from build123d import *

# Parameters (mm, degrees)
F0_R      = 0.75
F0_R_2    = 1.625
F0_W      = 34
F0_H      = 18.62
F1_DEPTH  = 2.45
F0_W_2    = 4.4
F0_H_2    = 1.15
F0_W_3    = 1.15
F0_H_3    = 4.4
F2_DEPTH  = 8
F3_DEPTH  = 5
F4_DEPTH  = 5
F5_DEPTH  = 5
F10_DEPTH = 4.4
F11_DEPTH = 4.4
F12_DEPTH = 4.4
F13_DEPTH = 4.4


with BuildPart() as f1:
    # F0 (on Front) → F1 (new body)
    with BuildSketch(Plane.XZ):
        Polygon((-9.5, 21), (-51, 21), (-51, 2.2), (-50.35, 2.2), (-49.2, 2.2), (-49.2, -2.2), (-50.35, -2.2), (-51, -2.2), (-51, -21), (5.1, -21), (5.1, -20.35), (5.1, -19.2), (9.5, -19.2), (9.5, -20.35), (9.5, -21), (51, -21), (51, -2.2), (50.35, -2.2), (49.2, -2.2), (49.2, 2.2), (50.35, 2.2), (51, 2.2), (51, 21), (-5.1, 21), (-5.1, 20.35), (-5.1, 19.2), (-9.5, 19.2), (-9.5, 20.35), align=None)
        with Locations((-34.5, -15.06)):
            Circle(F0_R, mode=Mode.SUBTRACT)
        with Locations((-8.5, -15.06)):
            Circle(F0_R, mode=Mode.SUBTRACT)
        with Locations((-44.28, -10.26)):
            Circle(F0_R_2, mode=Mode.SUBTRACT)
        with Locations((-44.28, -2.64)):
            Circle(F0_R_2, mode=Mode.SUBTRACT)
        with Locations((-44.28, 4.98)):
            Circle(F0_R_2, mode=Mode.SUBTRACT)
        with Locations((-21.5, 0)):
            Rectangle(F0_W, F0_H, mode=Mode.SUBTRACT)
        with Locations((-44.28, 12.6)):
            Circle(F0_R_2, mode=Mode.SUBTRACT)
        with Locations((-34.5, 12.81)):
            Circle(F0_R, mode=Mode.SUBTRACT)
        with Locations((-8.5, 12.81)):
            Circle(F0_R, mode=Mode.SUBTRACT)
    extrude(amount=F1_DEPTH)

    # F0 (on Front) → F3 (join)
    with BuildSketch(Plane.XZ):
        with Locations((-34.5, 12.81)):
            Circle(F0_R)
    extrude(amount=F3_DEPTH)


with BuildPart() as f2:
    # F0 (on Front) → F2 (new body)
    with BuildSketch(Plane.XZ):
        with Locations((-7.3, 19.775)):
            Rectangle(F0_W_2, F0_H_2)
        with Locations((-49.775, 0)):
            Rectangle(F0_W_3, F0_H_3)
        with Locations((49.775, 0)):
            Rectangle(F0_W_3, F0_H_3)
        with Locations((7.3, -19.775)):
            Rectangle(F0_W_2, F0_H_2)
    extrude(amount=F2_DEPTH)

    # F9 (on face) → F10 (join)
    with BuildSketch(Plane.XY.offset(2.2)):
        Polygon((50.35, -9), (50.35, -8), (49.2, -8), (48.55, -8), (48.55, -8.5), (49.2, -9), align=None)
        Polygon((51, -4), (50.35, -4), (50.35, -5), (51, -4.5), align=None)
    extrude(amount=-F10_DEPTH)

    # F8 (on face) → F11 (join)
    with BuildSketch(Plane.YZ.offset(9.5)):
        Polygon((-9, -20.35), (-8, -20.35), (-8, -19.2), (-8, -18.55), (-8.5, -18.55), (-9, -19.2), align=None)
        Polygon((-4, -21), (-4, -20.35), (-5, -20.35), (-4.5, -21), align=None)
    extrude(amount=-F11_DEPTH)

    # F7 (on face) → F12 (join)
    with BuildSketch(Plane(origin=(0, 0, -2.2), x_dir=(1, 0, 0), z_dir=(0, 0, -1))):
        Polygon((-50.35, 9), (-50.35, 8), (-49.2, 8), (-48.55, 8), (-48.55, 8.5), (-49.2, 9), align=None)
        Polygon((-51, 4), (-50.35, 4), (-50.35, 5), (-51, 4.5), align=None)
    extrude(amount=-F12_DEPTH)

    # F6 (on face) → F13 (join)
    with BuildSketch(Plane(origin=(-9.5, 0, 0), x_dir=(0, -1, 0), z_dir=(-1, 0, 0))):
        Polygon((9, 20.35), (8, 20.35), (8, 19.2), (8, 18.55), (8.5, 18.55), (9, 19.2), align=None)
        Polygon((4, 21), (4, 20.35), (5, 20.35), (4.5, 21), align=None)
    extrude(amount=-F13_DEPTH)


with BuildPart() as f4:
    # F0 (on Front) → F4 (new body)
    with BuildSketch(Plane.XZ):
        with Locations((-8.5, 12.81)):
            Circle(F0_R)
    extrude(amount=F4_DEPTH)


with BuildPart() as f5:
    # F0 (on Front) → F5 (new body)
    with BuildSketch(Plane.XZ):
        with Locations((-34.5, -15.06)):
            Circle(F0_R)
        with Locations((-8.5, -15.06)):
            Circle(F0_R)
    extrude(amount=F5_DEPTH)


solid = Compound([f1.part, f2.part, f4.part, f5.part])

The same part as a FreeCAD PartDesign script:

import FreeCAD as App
import Part
import Sketcher


def add_polygon(sketch, points):
    """Adds a closed chain of lines whose ends are joined by coincident constraints."""
    first, n = sketch.GeometryCount, len(points)
    for a, b in zip(points, points[1:] + points[:1]):
        sketch.addGeometry(Part.LineSegment(App.Vector(*a, 0), App.Vector(*b, 0)), False)
    for i in range(n):
        sketch.addConstraint(Sketcher.Constraint("Coincident", first + i, 2, first + (i + 1) % n, 1))

doc = App.newDocument("Part")
params = doc.addObject("Spreadsheet::Sheet", "Params")
for row, (alias, value) in enumerate([
    ("sketch1_diameter", "1.5 mm"),
    ("sketch1_diameter2", "3.25 mm"),
    ("sketch1_width", "34 mm"),
    ("sketch1_width2", "41.5 mm"),
    ("sketch1_width3", "1.8 mm"),
    ("pad1_length", "2.45 mm"),
    ("sketch2_diameter", "1.5 mm"),
    ("pad2_length", "5 mm"),
    ("sketch3_width", "4.4 mm"),
    ("sketch3_width2", "1.15 mm"),
    ("pad3_length", "8 mm"),
    ("sketch4_height", "1 mm"),
    ("sketch4_width", "1.8 mm"),
    ("sketch4_height2", "0.5 mm"),
    ("sketch4_width2", "1.15 mm"),
    ("pad4_length", "4.4 mm"),
    ("sketch5_width", "1 mm"),
    ("sketch5_width2", "0.5 mm"),
    ("sketch5_height", "1.8 mm"),
    ("sketch5_height2", "1.15 mm"),
    ("pad5_length", "4.4 mm"),
    ("sketch6_height", "1 mm"),
    ("sketch6_width", "1.8 mm"),
    ("sketch6_height2", "0.5 mm"),
    ("sketch6_width2", "1.15 mm"),
    ("pad6_length", "4.4 mm"),
    ("sketch7_width", "1 mm"),
    ("sketch7_width2", "0.5 mm"),
    ("sketch7_height", "1.8 mm"),
    ("sketch7_height2", "1.15 mm"),
    ("pad7_length", "4.4 mm"),
    ("sketch8_diameter", "1.5 mm"),
    ("pad8_length", "5 mm"),
    ("sketch9_diameter", "1.5 mm"),
    ("pad9_length", "5 mm"),
], start=1):
    params.set(f"A{row}", alias)
    params.set(f"B{row}", "=" + value)
    params.setAlias(f"B{row}", alias)

body = doc.addObject("PartDesign::Body", "Body")

# Sketch on XZ plane
sketch1 = doc.addObject("Sketcher::SketchObject", "Sketch")
body.addObject(sketch1)
sketch1.AttachmentSupport = (doc.XZ_Plane, [""])
sketch1.MapMode = "FlatFace"
add_polygon(sketch1, [(-9.5, 21), (-51, 21), (-51, 2.2), (-49.2, 2.2), (-49.2, -2.2), (-51, -2.2), (-51, -21), (5.1, -21), (5.1, -19.2), (9.5, -19.2), (9.5, -21), (51, -21), (51, -2.2), (49.2, -2.2), (49.2, 2.2), (51, 2.2), (51, 21), (-5.1, 21), (-5.1, 19.2), (-9.5, 19.2)])  # lines 0-19
sketch1.addGeometry(Part.Circle(App.Vector(-44.28, -10.26, 0), App.Vector(0, 0, 1), 1.625), False)  # 20
sketch1.addGeometry(Part.Circle(App.Vector(-34.5, -15.06, 0), App.Vector(0, 0, 1), 0.75), False)  # 21
sketch1.addGeometry(Part.Circle(App.Vector(-44.28, -2.64, 0), App.Vector(0, 0, 1), 1.625), False)  # 22
sketch1.addGeometry(Part.Circle(App.Vector(-8.5, -15.06, 0), App.Vector(0, 0, 1), 0.75), False)  # 23
sketch1.addGeometry(Part.Circle(App.Vector(-44.28, 4.98, 0), App.Vector(0, 0, 1), 1.625), False)  # 24
sketch1.addGeometry(Part.Circle(App.Vector(-44.28, 12.6, 0), App.Vector(0, 0, 1), 1.625), False)  # 25
sketch1.addGeometry(Part.Circle(App.Vector(-34.5, 12.81, 0), App.Vector(0, 0, 1), 0.75), False)  # 26
add_polygon(sketch1, [(-4.5, -9.31), (-38.5, -9.31), (-38.5, 9.31), (-4.5, 9.31)])  # lines 27-30
sketch1.addGeometry(Part.Circle(App.Vector(-8.5, 12.81, 0), App.Vector(0, 0, 1), 0.75), False)  # 31
sketch1.addConstraint(Sketcher.Constraint("Horizontal", 0))
sketch1.addConstraint(Sketcher.Constraint("Vertical", 1))
sketch1.addConstraint(Sketcher.Constraint("Horizontal", 2))
sketch1.addConstraint(Sketcher.Constraint("Vertical", 3))
sketch1.addConstraint(Sketcher.Constraint("Horizontal", 4))
sketch1.addConstraint(Sketcher.Constraint("Vertical", 5))
sketch1.addConstraint(Sketcher.Constraint("Horizontal", 6))
sketch1.addConstraint(Sketcher.Constraint("Vertical", 7))
sketch1.addConstraint(Sketcher.Constraint("Horizontal", 8))
sketch1.addConstraint(Sketcher.Constraint("Vertical", 9))
sketch1.addConstraint(Sketcher.Constraint("Horizontal", 10))
sketch1.addConstraint(Sketcher.Constraint("Vertical", 11))
sketch1.addConstraint(Sketcher.Constraint("Horizontal", 12))
sketch1.addConstraint(Sketcher.Constraint("Vertical", 13))
sketch1.addConstraint(Sketcher.Constraint("Horizontal", 14))
sketch1.addConstraint(Sketcher.Constraint("Vertical", 15))
sketch1.addConstraint(Sketcher.Constraint("Horizontal", 16))
sketch1.addConstraint(Sketcher.Constraint("Vertical", 17))
sketch1.addConstraint(Sketcher.Constraint("Horizontal", 18))
sketch1.addConstraint(Sketcher.Constraint("Vertical", 19))
sketch1.addConstraint(Sketcher.Constraint("Horizontal", 27))
sketch1.addConstraint(Sketcher.Constraint("Vertical", 28))
sketch1.addConstraint(Sketcher.Constraint("Horizontal", 29))
sketch1.addConstraint(Sketcher.Constraint("Vertical", 30))
sketch1.addConstraint(Sketcher.Constraint("Equal", 20, 22))
sketch1.addConstraint(Sketcher.Constraint("Equal", 21, 23))
sketch1.addConstraint(Sketcher.Constraint("Equal", 22, 24))
sketch1.addConstraint(Sketcher.Constraint("Equal", 24, 25))
sketch1.addConstraint(Sketcher.Constraint("Equal", 23, 26))
sketch1.addConstraint(Sketcher.Constraint("Equal", 26, 31))
sketch1.addConstraint(Sketcher.Constraint("Symmetric", 0, 2, 10, 2, -1, 1))
sketch1.addConstraint(Sketcher.Constraint("Symmetric", 2, 2, 12, 2, -1, 1))
sketch1.addConstraint(Sketcher.Constraint("Symmetric", 4, 2, 14, 2, -1, 1))
sketch1.addConstraint(Sketcher.Constraint("Symmetric", 6, 2, 16, 2, -1, 1))
sketch1.addConstraint(Sketcher.Constraint("Symmetric", 8, 2, 18, 2, -1, 1))
sketch1.addConstraint(Sketcher.Constraint("Symmetric", 5, 2, 10, 2, -2))
sketch1.addConstraint(Sketcher.Constraint("Horizontal", 21, 3, 23, 3))
sketch1.addConstraint(Sketcher.Constraint("Horizontal", 26, 3, 31, 3))
sketch1.addConstraint(Sketcher.Constraint("Horizontal", 4, 2, 11, 2))
sketch1.addConstraint(Sketcher.Constraint("Vertical", 20, 3, 22, 3))
sketch1.addConstraint(Sketcher.Constraint("Vertical", 22, 3, 24, 3))
sketch1.addConstraint(Sketcher.Constraint("Vertical", 24, 3, 25, 3))
sketch1.addConstraint(Sketcher.Constraint("Vertical", 21, 3, 26, 3))
sketch1.addConstraint(Sketcher.Constraint("Vertical", 23, 3, 31, 3))
sketch1.addConstraint(Sketcher.Constraint("Equal", 18, 3))
sketch1.addConstraint(Sketcher.Constraint("Equal", 14, 7))
sketch1.addConstraint(Sketcher.Constraint("Diameter", 21, 1.5))
sketch1.addConstraint(Sketcher.Constraint("Diameter", 20, 3.25))
sketch1.addConstraint(Sketcher.Constraint("DistanceX", 27, 2, 27, 1, 34.0))
sketch1.addConstraint(Sketcher.Constraint("DistanceX", 0, 2, 0, 1, 41.5))
sketch1.addConstraint(Sketcher.Constraint("DistanceX", 2, 1, 2, 2, 1.8))
sketch1.addConstraint(Sketcher.Constraint("DistanceX", 6, 1, 6, 2, 56.1))
sketch1.addConstraint(Sketcher.Constraint("DistanceX", 8, 1, 8, 2, 4.4))
sketch1.addConstraint(Sketcher.Constraint("DistanceY", 1, 2, 1, 1, 18.8))
sketch1.addConstraint(Sketcher.Constraint("DistanceX", 21, 3, 23, 3, 26.0))
sketch1.addConstraint(Sketcher.Constraint("DistanceX", 23, 3, 8, 2, 18.0))
sketch1.addConstraint(Sketcher.Constraint("DistanceX", 27, 2, 21, 3, 4.0))
sketch1.addConstraint(Sketcher.Constraint("DistanceY", 28, 1, 28, 2, 18.62))
sketch1.addConstraint(Sketcher.Constraint("DistanceY", -1, 1, 25, 3, 12.6))
sketch1.addConstraint(Sketcher.Constraint("DistanceY", 21, 3, 20, 3, 4.8))
sketch1.addConstraint(Sketcher.Constraint("DistanceY", 28, 2, 26, 3, 3.5))
sketch1.addConstraint(Sketcher.Constraint("DistanceX", 20, 3, -1, 1, 44.28))
sketch1.addConstraint(Sketcher.Constraint("DistanceY", 20, 3, -1, 1, 10.26))
sketch1.addConstraint(Sketcher.Constraint("DistanceY", 22, 3, -1, 1, 2.64))
sketch1.addConstraint(Sketcher.Constraint("DistanceY", -1, 1, 24, 3, 4.98))
sketch1.addConstraint(Sketcher.Constraint("DistanceY", -1, 1, 26, 3, 12.81))
sketch1.setExpression("Constraints[70]", "Params.sketch1_diameter")
sketch1.setExpression("Constraints[71]", "Params.sketch1_diameter2")
sketch1.setExpression("Constraints[72]", "Params.sketch1_width")
sketch1.setExpression("Constraints[73]", "Params.sketch1_width2")
sketch1.setExpression("Constraints[74]", "Params.sketch1_width3")
pad1 = doc.addObject("PartDesign::Pad", "Pad")
body.addObject(pad1)
pad1.Profile = sketch1
pad1.setExpression("Length", "Params.pad1_length")

# Sketch on XZ plane
sketch2 = doc.addObject("Sketcher::SketchObject", "Sketch001")
body.addObject(sketch2)
sketch2.AttachmentSupport = (doc.XZ_Plane, [""])
sketch2.MapMode = "FlatFace"
sketch2.addGeometry(Part.Circle(App.Vector(-34.5, 12.81, 0), App.Vector(0, 0, 1), 0.75), False)
sketch2.addConstraint(Sketcher.Constraint("Diameter", 0, 1.5))
sketch2.addConstraint(Sketcher.Constraint("DistanceX", 0, 3, -1, 1, 34.5))
sketch2.addConstraint(Sketcher.Constraint("DistanceY", -1, 1, 0, 3, 12.81))
sketch2.setExpression("Constraints[0]", "Params.sketch2_diameter")
pad2 = doc.addObject("PartDesign::Pad", "Pad001")
body.addObject(pad2)
pad2.Profile = sketch2
pad2.setExpression("Length", "Params.pad2_length")
body2 = doc.addObject("PartDesign::Body", "Body001")
body2.AllowCompound = True

# Sketch on XZ plane
sketch3 = doc.addObject("Sketcher::SketchObject", "Sketch002")
body2.addObject(sketch3)
sketch3.AttachmentSupport = (doc.getObject("XZ_Plane001"), [""])
sketch3.MapMode = "FlatFace"
add_polygon(sketch3, [(-9.5, 20.35), (-9.5, 19.2), (-5.1, 19.2), (-5.1, 20.35)])  # lines 0-3
add_polygon(sketch3, [(-50.35, 2.2), (-50.35, -2.2), (-49.2, -2.2), (-49.2, 2.2)])  # lines 4-7
add_polygon(sketch3, [(49.2, 2.2), (49.2, -2.2), (50.35, -2.2), (50.35, 2.2)])  # lines 8-11
add_polygon(sketch3, [(5.1, -19.2), (5.1, -20.35), (9.5, -20.35), (9.5, -19.2)])  # lines 12-15
sketch3.addConstraint(Sketcher.Constraint("Vertical", 0))
sketch3.addConstraint(Sketcher.Constraint("Horizontal", 1))
sketch3.addConstraint(Sketcher.Constraint("Vertical", 2))
sketch3.addConstraint(Sketcher.Constraint("Horizontal", 3))
sketch3.addConstraint(Sketcher.Constraint("Vertical", 4))
sketch3.addConstraint(Sketcher.Constraint("Horizontal", 5))
sketch3.addConstraint(Sketcher.Constraint("Vertical", 6))
sketch3.addConstraint(Sketcher.Constraint("Horizontal", 7))
sketch3.addConstraint(Sketcher.Constraint("Vertical", 8))
sketch3.addConstraint(Sketcher.Constraint("Horizontal", 9))
sketch3.addConstraint(Sketcher.Constraint("Vertical", 10))
sketch3.addConstraint(Sketcher.Constraint("Horizontal", 11))
sketch3.addConstraint(Sketcher.Constraint("Vertical", 12))
sketch3.addConstraint(Sketcher.Constraint("Horizontal", 13))
sketch3.addConstraint(Sketcher.Constraint("Vertical", 14))
sketch3.addConstraint(Sketcher.Constraint("Horizontal", 15))
sketch3.addConstraint(Sketcher.Constraint("Symmetric", 6, 2, 8, 2, -1, 1))
sketch3.addConstraint(Sketcher.Constraint("Symmetric", 4, 2, 10, 2, -1, 1))
sketch3.addConstraint(Sketcher.Constraint("Symmetric", 2, 2, 12, 2, -1, 1))
sketch3.addConstraint(Sketcher.Constraint("Symmetric", 0, 2, 14, 2, -1, 1))
sketch3.addConstraint(Sketcher.Constraint("Horizontal", 5, 2, 8, 2))
sketch3.addConstraint(Sketcher.Constraint("Equal", 11, 0))
sketch3.addConstraint(Sketcher.Constraint("Equal", 15, 4))
sketch3.addConstraint(Sketcher.Constraint("DistanceX", 1, 1, 1, 2, 4.4))
sketch3.addConstraint(Sketcher.Constraint("DistanceY", 6, 2, 0, 2, 17.0))
sketch3.addConstraint(Sketcher.Constraint("DistanceX", 0, 2, 13, 2, 19.0))
sketch3.addConstraint(Sketcher.Constraint("DistanceX", 5, 1, 5, 2, 1.15))
sketch3.addConstraint(Sketcher.Constraint("DistanceX", 5, 2, -1, 1, 49.2))
sketch3.setExpression("Constraints[39]", "Params.sketch3_width")
sketch3.setExpression("Constraints[42]", "Params.sketch3_width2")
pad3 = doc.addObject("PartDesign::Pad", "Pad002")
body2.addObject(pad3)
pad3.Profile = sketch3
pad3.setExpression("Length", "Params.pad3_length")

# Sketch on XY plane
sketch4 = doc.addObject("Sketcher::SketchObject", "Sketch003")
body2.addObject(sketch4)
sketch4.AttachmentSupport = (doc.getObject("XY_Plane001"), [""])
sketch4.MapMode = "FlatFace"
sketch4.AttachmentOffset = App.Placement(App.Vector(0, 0, 2.2), App.Rotation())
add_polygon(sketch4, [(50.35, -9), (50.35, -8), (48.55, -8), (48.55, -8.5), (49.2, -9)])  # lines 0-4
add_polygon(sketch4, [(51, -4), (50.35, -4), (50.35, -5), (51, -4.5)])  # lines 5-8
sketch4.addConstraint(Sketcher.Constraint("Vertical", 0))
sketch4.addConstraint(Sketcher.Constraint("Horizontal", 1))
sketch4.addConstraint(Sketcher.Constraint("Vertical", 2))
sketch4.addConstraint(Sketcher.Constraint("Horizontal", 4))
sketch4.addConstraint(Sketcher.Constraint("Horizontal", 5))
sketch4.addConstraint(Sketcher.Constraint("Vertical", 6))
sketch4.addConstraint(Sketcher.Constraint("Vertical", 8))
sketch4.addConstraint(Sketcher.Constraint("Vertical", 4, 2, 5, 2))
sketch4.addConstraint(Sketcher.Constraint("Equal", 0, 6))
sketch4.addConstraint(Sketcher.Constraint("Equal", 2, 8))
sketch4.addConstraint(Sketcher.Constraint("Equal", 3, 7))
sketch4.addConstraint(Sketcher.Constraint("DistanceY", 0, 1, 0, 2, 1.0))
sketch4.addConstraint(Sketcher.Constraint("DistanceX", 1, 2, 1, 1, 1.8))
sketch4.addConstraint(Sketcher.Constraint("DistanceY", 2, 2, 2, 1, 0.5))
sketch4.addConstraint(Sketcher.Constraint("DistanceY", 0, 2, -1, 1, 8.0))
sketch4.addConstraint(Sketcher.Constraint("DistanceY", 5, 2, -1, 1, 4.0))
sketch4.addConstraint(Sketcher.Constraint("DistanceX", -1, 1, 7, 2, 51.0))
sketch4.addConstraint(Sketcher.Constraint("DistanceX", 4, 1, 4, 2, 1.15))
sketch4.setExpression("Constraints[20]", "Params.sketch4_height")
sketch4.setExpression("Constraints[21]", "Params.sketch4_width")
sketch4.setExpression("Constraints[22]", "Params.sketch4_height2")
sketch4.setExpression("Constraints[26]", "Params.sketch4_width2")
pad4 = doc.addObject("PartDesign::Pad", "Pad003")
body2.addObject(pad4)
pad4.Profile = sketch4
pad4.setExpression("Length", "Params.pad4_length")
pad4.Reversed = True

# Sketch on YZ plane
sketch5 = doc.addObject("Sketcher::SketchObject", "Sketch004")
body2.addObject(sketch5)
sketch5.AttachmentSupport = (doc.getObject("YZ_Plane001"), [""])
sketch5.MapMode = "FlatFace"
sketch5.AttachmentOffset = App.Placement(App.Vector(0, 0, 9.5), App.Rotation())
add_polygon(sketch5, [(-9, -20.35), (-8, -20.35), (-8, -18.55), (-8.5, -18.55), (-9, -19.2)])  # lines 0-4
add_polygon(sketch5, [(-4, -21), (-4, -20.35), (-5, -20.35), (-4.5, -21)])  # lines 5-8
sketch5.addConstraint(Sketcher.Constraint("Horizontal", 0))
sketch5.addConstraint(Sketcher.Constraint("Vertical", 1))
sketch5.addConstraint(Sketcher.Constraint("Horizontal", 2))
sketch5.addConstraint(Sketcher.Constraint("Vertical", 4))
sketch5.addConstraint(Sketcher.Constraint("Vertical", 5))
sketch5.addConstraint(Sketcher.Constraint("Horizontal", 6))
sketch5.addConstraint(Sketcher.Constraint("Horizontal", 8))
sketch5.addConstraint(Sketcher.Constraint("Horizontal", 4, 2, 5, 2))
sketch5.addConstraint(Sketcher.Constraint("Equal", 0, 6))
sketch5.addConstraint(Sketcher.Constraint("Equal", 2, 8))
sketch5.addConstraint(Sketcher.Constraint("Equal", 3, 7))
sketch5.addConstraint(Sketcher.Constraint("DistanceX", 0, 1, 0, 2, 1.0))
sketch5.addConstraint(Sketcher.Constraint("DistanceX", 2, 2, 2, 1, 0.5))
sketch5.addConstraint(Sketcher.Constraint("DistanceY", 1, 1, 1, 2, 1.8))
sketch5.addConstraint(Sketcher.Constraint("DistanceX", 0, 2, -1, 1, 8.0))
sketch5.addConstraint(Sketcher.Constraint("DistanceX", 5, 2, -1, 1, 4.0))
sketch5.addConstraint(Sketcher.Constraint("DistanceY", 7, 2, -1, 1, 21.0))
sketch5.addConstraint(Sketcher.Constraint("DistanceY", 4, 2, 4, 1, 1.15))
sketch5.setExpression("Constraints[20]", "Params.sketch5_width")
sketch5.setExpression("Constraints[21]", "Params.sketch5_width2")
sketch5.setExpression("Constraints[22]", "Params.sketch5_height")
sketch5.setExpression("Constraints[26]", "Params.sketch5_height2")
pad5 = doc.addObject("PartDesign::Pad", "Pad004")
body2.addObject(pad5)
pad5.Profile = sketch5
pad5.setExpression("Length", "Params.pad5_length")
pad5.Reversed = True

# Sketch on XY plane
sketch6 = doc.addObject("Sketcher::SketchObject", "Sketch005")
body2.addObject(sketch6)
sketch6.AttachmentSupport = (doc.getObject("XY_Plane001"), [""])
sketch6.MapMode = "FlatFace"
sketch6.AttachmentOffset = App.Placement(App.Vector(0, 0, -2.2), App.Rotation())
add_polygon(sketch6, [(-50.35, -9), (-50.35, -8), (-48.55, -8), (-48.55, -8.5), (-49.2, -9)])  # lines 0-4
add_polygon(sketch6, [(-51, -4), (-50.35, -4), (-50.35, -5), (-51, -4.5)])  # lines 5-8
sketch6.addConstraint(Sketcher.Constraint("Vertical", 0))
sketch6.addConstraint(Sketcher.Constraint("Horizontal", 1))
sketch6.addConstraint(Sketcher.Constraint("Vertical", 2))
sketch6.addConstraint(Sketcher.Constraint("Horizontal", 4))
sketch6.addConstraint(Sketcher.Constraint("Horizontal", 5))
sketch6.addConstraint(Sketcher.Constraint("Vertical", 6))
sketch6.addConstraint(Sketcher.Constraint("Vertical", 8))
sketch6.addConstraint(Sketcher.Constraint("Vertical", 4, 2, 5, 2))
sketch6.addConstraint(Sketcher.Constraint("Equal", 0, 6))
sketch6.addConstraint(Sketcher.Constraint("Equal", 2, 8))
sketch6.addConstraint(Sketcher.Constraint("Equal", 3, 7))
sketch6.addConstraint(Sketcher.Constraint("DistanceY", 0, 1, 0, 2, 1.0))
sketch6.addConstraint(Sketcher.Constraint("DistanceX", 1, 1, 1, 2, 1.8))
sketch6.addConstraint(Sketcher.Constraint("DistanceY", 2, 2, 2, 1, 0.5))
sketch6.addConstraint(Sketcher.Constraint("DistanceY", 0, 2, -1, 1, 8.0))
sketch6.addConstraint(Sketcher.Constraint("DistanceY", 5, 2, -1, 1, 4.0))
sketch6.addConstraint(Sketcher.Constraint("DistanceX", 7, 2, -1, 1, 51.0))
sketch6.addConstraint(Sketcher.Constraint("DistanceX", 4, 2, 4, 1, 1.15))
sketch6.setExpression("Constraints[20]", "Params.sketch6_height")
sketch6.setExpression("Constraints[21]", "Params.sketch6_width")
sketch6.setExpression("Constraints[22]", "Params.sketch6_height2")
sketch6.setExpression("Constraints[26]", "Params.sketch6_width2")
pad6 = doc.addObject("PartDesign::Pad", "Pad005")
body2.addObject(pad6)
pad6.Profile = sketch6
pad6.setExpression("Length", "Params.pad6_length")

# Sketch on YZ plane
sketch7 = doc.addObject("Sketcher::SketchObject", "Sketch006")
body2.addObject(sketch7)
sketch7.AttachmentSupport = (doc.getObject("YZ_Plane001"), [""])
sketch7.MapMode = "FlatFace"
sketch7.AttachmentOffset = App.Placement(App.Vector(0, 0, -9.5), App.Rotation())
add_polygon(sketch7, [(-9, 20.35), (-8, 20.35), (-8, 18.55), (-8.5, 18.55), (-9, 19.2)])  # lines 0-4
add_polygon(sketch7, [(-4, 21), (-4, 20.35), (-5, 20.35), (-4.5, 21)])  # lines 5-8
sketch7.addConstraint(Sketcher.Constraint("Horizontal", 0))
sketch7.addConstraint(Sketcher.Constraint("Vertical", 1))
sketch7.addConstraint(Sketcher.Constraint("Horizontal", 2))
sketch7.addConstraint(Sketcher.Constraint("Vertical", 4))
sketch7.addConstraint(Sketcher.Constraint("Vertical", 5))
sketch7.addConstraint(Sketcher.Constraint("Horizontal", 6))
sketch7.addConstraint(Sketcher.Constraint("Horizontal", 8))
sketch7.addConstraint(Sketcher.Constraint("Horizontal", 4, 2, 5, 2))
sketch7.addConstraint(Sketcher.Constraint("Equal", 0, 6))
sketch7.addConstraint(Sketcher.Constraint("Equal", 2, 8))
sketch7.addConstraint(Sketcher.Constraint("Equal", 3, 7))
sketch7.addConstraint(Sketcher.Constraint("DistanceX", 0, 1, 0, 2, 1.0))
sketch7.addConstraint(Sketcher.Constraint("DistanceX", 2, 2, 2, 1, 0.5))
sketch7.addConstraint(Sketcher.Constraint("DistanceY", 1, 2, 1, 1, 1.8))
sketch7.addConstraint(Sketcher.Constraint("DistanceX", 0, 2, -1, 1, 8.0))
sketch7.addConstraint(Sketcher.Constraint("DistanceX", 5, 2, -1, 1, 4.0))
sketch7.addConstraint(Sketcher.Constraint("DistanceY", -1, 1, 7, 2, 21.0))
sketch7.addConstraint(Sketcher.Constraint("DistanceY", 4, 1, 4, 2, 1.15))
sketch7.setExpression("Constraints[20]", "Params.sketch7_width")
sketch7.setExpression("Constraints[21]", "Params.sketch7_width2")
sketch7.setExpression("Constraints[22]", "Params.sketch7_height")
sketch7.setExpression("Constraints[26]", "Params.sketch7_height2")
pad7 = doc.addObject("PartDesign::Pad", "Pad006")
body2.addObject(pad7)
pad7.Profile = sketch7
pad7.setExpression("Length", "Params.pad7_length")
body3 = doc.addObject("PartDesign::Body", "Body002")

# Sketch on XZ plane
sketch8 = doc.addObject("Sketcher::SketchObject", "Sketch007")
body3.addObject(sketch8)
sketch8.AttachmentSupport = (doc.getObject("XZ_Plane002"), [""])
sketch8.MapMode = "FlatFace"
sketch8.addGeometry(Part.Circle(App.Vector(-8.5, 12.81, 0), App.Vector(0, 0, 1), 0.75), False)
sketch8.addConstraint(Sketcher.Constraint("Diameter", 0, 1.5))
sketch8.addConstraint(Sketcher.Constraint("DistanceX", 0, 3, -1, 1, 8.5))
sketch8.addConstraint(Sketcher.Constraint("DistanceY", -1, 1, 0, 3, 12.81))
sketch8.setExpression("Constraints[0]", "Params.sketch8_diameter")
pad8 = doc.addObject("PartDesign::Pad", "Pad007")
body3.addObject(pad8)
pad8.Profile = sketch8
pad8.setExpression("Length", "Params.pad8_length")
body4 = doc.addObject("PartDesign::Body", "Body003")
body4.AllowCompound = True

# Sketch on XZ plane
sketch9 = doc.addObject("Sketcher::SketchObject", "Sketch008")
body4.addObject(sketch9)
sketch9.AttachmentSupport = (doc.getObject("XZ_Plane003"), [""])
sketch9.MapMode = "FlatFace"
sketch9.addGeometry(Part.Circle(App.Vector(-34.5, -15.06, 0), App.Vector(0, 0, 1), 0.75), False)
sketch9.addGeometry(Part.Circle(App.Vector(-8.5, -15.06, 0), App.Vector(0, 0, 1), 0.75), False)
sketch9.addConstraint(Sketcher.Constraint("Equal", 0, 1))
sketch9.addConstraint(Sketcher.Constraint("Horizontal", 0, 3, 1, 3))
sketch9.addConstraint(Sketcher.Constraint("Diameter", 0, 1.5))
sketch9.addConstraint(Sketcher.Constraint("DistanceX", 0, 3, 1, 3, 26.0))
sketch9.addConstraint(Sketcher.Constraint("DistanceX", 0, 3, -1, 1, 34.5))
sketch9.addConstraint(Sketcher.Constraint("DistanceY", 0, 3, -1, 1, 15.06))
sketch9.setExpression("Constraints[2]", "Params.sketch9_diameter")
pad9 = doc.addObject("PartDesign::Pad", "Pad008")
body4.addObject(pad9)
pad9.Profile = sketch9
pad9.setExpression("Length", "Params.pad9_length")

doc.recompute()
